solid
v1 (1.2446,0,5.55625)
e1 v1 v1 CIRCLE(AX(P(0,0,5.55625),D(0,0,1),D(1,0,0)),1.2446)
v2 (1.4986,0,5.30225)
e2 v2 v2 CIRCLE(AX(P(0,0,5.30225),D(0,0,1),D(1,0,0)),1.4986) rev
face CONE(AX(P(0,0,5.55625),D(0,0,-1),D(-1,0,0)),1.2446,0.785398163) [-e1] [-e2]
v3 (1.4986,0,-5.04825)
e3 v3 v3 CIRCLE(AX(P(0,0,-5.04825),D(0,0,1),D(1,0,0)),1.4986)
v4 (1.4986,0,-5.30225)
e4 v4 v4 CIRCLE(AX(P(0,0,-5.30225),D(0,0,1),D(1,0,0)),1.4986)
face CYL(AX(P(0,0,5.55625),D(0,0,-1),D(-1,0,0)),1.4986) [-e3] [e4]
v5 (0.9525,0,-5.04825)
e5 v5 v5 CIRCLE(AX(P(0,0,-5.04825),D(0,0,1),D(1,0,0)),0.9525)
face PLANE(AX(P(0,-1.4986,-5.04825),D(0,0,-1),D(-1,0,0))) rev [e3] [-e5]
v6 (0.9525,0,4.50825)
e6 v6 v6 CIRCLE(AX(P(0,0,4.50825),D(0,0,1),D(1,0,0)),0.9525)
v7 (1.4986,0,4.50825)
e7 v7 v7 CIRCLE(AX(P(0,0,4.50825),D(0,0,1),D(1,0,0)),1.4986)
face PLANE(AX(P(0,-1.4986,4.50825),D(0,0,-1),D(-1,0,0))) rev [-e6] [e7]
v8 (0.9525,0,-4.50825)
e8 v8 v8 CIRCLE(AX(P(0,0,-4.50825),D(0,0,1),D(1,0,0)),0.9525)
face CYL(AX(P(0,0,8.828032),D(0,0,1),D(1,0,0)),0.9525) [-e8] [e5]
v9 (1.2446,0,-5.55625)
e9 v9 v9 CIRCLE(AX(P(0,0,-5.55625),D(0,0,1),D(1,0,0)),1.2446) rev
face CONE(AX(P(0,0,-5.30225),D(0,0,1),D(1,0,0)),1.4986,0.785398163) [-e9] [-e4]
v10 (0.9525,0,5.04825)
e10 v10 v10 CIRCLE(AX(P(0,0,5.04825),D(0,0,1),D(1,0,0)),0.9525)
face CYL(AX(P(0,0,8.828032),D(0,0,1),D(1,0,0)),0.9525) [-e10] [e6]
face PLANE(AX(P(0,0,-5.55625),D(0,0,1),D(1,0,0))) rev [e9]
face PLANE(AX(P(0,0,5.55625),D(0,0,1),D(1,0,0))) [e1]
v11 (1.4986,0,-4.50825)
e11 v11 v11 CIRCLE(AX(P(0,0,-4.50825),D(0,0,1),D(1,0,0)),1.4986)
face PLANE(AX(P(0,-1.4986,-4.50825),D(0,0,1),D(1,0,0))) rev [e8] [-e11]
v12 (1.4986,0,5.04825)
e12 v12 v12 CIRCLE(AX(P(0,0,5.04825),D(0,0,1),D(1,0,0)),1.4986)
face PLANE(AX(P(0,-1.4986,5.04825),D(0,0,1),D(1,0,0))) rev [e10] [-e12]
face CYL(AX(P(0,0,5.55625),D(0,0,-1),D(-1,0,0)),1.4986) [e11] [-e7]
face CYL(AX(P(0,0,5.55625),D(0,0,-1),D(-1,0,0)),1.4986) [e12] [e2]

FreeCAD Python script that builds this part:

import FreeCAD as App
import Part
import Sketcher
Q = App.Units.Quantity


def edges_at(feature, points):
    """Names of the edges that pass closest to the given points."""
    edges = feature.Shape.Edges
    near = lambda p: min(range(len(edges)), key=lambda i: edges[i].distToShape(Part.Vertex(*p))[0])
    return sorted({f"Edge{near(p) + 1}" for p in points})

doc = App.newDocument("Part")
params = doc.addObject("Spreadsheet::Sheet", "Params")
for row, (alias, value) in enumerate([
    ("sketch1_diameter", "0.118 in"),
    ("pad1_length", "0.4375 in"),
    ("groove_angle", "360 deg"),
    ("chamfer_size", "0.01 in"),
], start=1):
    params.set(f"A{row}", alias)
    params.set(f"B{row}", "=" + value)
    params.setAlias(f"B{row}", alias)

body = doc.addObject("PartDesign::Body", "Body")

# Sketch on XY plane
sketch1 = doc.addObject("Sketcher::SketchObject", "Sketch")
body.addObject(sketch1)
sketch1.AttachmentSupport = (doc.XY_Plane, [""])
sketch1.MapMode = "FlatFace"
sketch1.addGeometry(Part.Circle(App.Vector(0, 0, 0), App.Vector(0, 0, 1), 1.5), False)
sketch1.addConstraint([
    Sketcher.Constraint("Coincident", 0, 3, -1, 1),
    Sketcher.Constraint("Diameter", 0, Q("0.118 in")),
])
sketch1.setExpression("Constraints[1]", "Params.sketch1_diameter")
pad1 = doc.addObject("PartDesign::Pad", "Pad")
body.addObject(pad1)
pad1.Profile = sketch1
pad1.setExpression("Length", "Params.pad1_length")
pad1.Midplane = True

# Sketch on YZ plane
sketch2 = doc.addObject("Sketcher::SketchObject", "Sketch001")
body.addObject(sketch2)
sketch2.AttachmentSupport = (doc.YZ_Plane, [""])
sketch2.MapMode = "FlatFace"
sketch2.addGeometry([
    Part.LineSegment(App.Vector(-1, 5, 0), App.Vector(-1.5, 5, 0)),  # 0
    Part.LineSegment(App.Vector(-1.5, 5, 0), App.Vector(-1.5, 4.5, 0)),  # 1
    Part.LineSegment(App.Vector(-1.5, 4.5, 0), App.Vector(-1, 4.5, 0)),  # 2
    Part.LineSegment(App.Vector(-1, 4.5, 0), App.Vector(-1, 5, 0)),  # 3
    Part.LineSegment(App.Vector(-1, -4.5, 0), App.Vector(-1.5, -4.5, 0)),  # 4
    Part.LineSegment(App.Vector(-1.5, -4.5, 0), App.Vector(-1.5, -5, 0)),  # 5
    Part.LineSegment(App.Vector(-1.5, -5, 0), App.Vector(-1, -5, 0)),  # 6
    Part.LineSegment(App.Vector(-1, -5, 0), App.Vector(-1, -4.5, 0)),  # 7
], False)
sketch2.addConstraint([
    Sketcher.Constraint("Coincident", 0, 2, 1, 1),
    Sketcher.Constraint("Coincident", 1, 2, 2, 1),
    Sketcher.Constraint("Coincident", 2, 2, 3, 1),
    Sketcher.Constraint("Coincident", 3, 2, 0, 1),
    Sketcher.Constraint("Coincident", 4, 2, 5, 1),
    Sketcher.Constraint("Coincident", 5, 2, 6, 1),
    Sketcher.Constraint("Coincident", 6, 2, 7, 1),
    Sketcher.Constraint("Coincident", 7, 2, 4, 1),
    Sketcher.Constraint("Horizontal", 0),
    Sketcher.Constraint("Vertical", 1),
    Sketcher.Constraint("Horizontal", 2),
    Sketcher.Constraint("Vertical", 3),
    Sketcher.Constraint("Horizontal", 4),
    Sketcher.Constraint("Vertical", 5),
    Sketcher.Constraint("Horizontal", 6),
    Sketcher.Constraint("Vertical", 7),
    Sketcher.Constraint("Symmetric", 1, 2, 4, 2, -1),
    Sketcher.Constraint("Symmetric", 3, 2, 6, 2, -1),
    Sketcher.Constraint("DistanceX", 0, 2, 0, 1, Q("0.0215 in")),
    Sketcher.Constraint("DistanceX", 0, 2, -1, 1, Q("0.059 in")),
    Sketcher.Constraint("DistanceY", 1, 2, 1, 1, Q("0.54 mm")),
    Sketcher.Constraint("DistanceY", 5, 2, 0, 2, Q("0.3975 in")),
])
groove = doc.addObject("PartDesign::Groove", "Groove")
body.addObject(groove)
groove.Profile = sketch2
groove.ReferenceAxis = (sketch2, ["V_Axis"])
groove.setExpression("Angle", "Params.groove_angle")
doc.recompute()

chamfer = doc.addObject("PartDesign::Chamfer", "Chamfer")
body.addObject(chamfer)
chamfer.Base = (groove, edges_at(groove, [(-1.499, 0, -5.556), (-1.499, 0, 5.556)]))
chamfer.setExpression("Size", "Params.chamfer_size")

doc.recompute()
